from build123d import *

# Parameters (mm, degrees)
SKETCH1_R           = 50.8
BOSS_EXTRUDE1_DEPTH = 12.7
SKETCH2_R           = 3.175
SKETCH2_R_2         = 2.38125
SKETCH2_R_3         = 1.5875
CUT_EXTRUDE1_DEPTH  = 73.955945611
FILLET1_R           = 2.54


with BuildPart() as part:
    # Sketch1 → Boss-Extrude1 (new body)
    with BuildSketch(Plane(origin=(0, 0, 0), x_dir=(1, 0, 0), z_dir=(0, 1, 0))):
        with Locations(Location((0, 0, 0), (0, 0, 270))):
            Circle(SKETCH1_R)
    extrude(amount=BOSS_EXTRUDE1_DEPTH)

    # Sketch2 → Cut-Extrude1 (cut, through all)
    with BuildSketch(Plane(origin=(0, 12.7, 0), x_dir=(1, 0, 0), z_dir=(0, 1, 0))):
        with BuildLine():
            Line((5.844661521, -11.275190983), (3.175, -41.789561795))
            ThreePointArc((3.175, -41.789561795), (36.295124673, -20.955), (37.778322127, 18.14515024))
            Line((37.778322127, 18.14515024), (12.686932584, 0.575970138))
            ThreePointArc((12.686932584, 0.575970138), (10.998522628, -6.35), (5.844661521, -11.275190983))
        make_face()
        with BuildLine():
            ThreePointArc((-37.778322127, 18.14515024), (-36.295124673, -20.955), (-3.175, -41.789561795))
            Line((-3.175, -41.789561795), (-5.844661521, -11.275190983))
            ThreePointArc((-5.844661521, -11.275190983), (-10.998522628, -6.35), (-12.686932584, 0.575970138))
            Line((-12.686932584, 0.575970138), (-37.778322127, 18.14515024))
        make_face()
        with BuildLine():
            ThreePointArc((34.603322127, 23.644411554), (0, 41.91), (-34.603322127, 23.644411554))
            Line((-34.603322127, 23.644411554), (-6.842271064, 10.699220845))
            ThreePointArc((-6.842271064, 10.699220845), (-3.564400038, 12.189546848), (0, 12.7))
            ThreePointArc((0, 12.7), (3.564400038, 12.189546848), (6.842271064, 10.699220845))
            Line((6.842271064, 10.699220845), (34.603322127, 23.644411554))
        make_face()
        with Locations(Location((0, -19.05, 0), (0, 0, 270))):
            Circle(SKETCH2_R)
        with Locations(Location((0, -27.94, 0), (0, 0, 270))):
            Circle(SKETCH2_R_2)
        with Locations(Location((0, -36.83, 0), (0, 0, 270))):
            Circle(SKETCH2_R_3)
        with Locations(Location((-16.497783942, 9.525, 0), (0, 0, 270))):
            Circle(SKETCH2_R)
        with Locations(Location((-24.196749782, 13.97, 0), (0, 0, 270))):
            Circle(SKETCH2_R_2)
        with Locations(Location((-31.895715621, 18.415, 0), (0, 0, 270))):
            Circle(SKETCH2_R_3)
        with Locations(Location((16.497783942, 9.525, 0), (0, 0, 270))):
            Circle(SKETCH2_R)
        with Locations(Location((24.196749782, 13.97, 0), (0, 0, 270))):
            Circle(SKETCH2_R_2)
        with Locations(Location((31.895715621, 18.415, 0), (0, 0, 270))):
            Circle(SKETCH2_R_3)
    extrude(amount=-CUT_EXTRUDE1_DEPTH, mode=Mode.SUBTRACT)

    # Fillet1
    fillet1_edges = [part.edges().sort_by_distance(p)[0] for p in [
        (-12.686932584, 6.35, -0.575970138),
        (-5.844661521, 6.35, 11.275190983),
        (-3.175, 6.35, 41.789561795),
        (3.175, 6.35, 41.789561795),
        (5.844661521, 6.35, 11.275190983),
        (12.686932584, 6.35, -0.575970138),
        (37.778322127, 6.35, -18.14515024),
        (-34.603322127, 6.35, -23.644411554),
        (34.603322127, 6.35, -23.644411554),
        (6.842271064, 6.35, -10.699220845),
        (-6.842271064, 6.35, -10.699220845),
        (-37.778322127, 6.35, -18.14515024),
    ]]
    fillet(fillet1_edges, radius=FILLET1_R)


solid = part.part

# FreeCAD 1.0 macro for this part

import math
import FreeCAD as App
import Part
import Sketcher

V = App.Vector
Q = App.Units.Quantity


def edges_at(feature, points):
    """Names of the edges that pass closest to the given points."""
    edges = feature.Shape.Edges
    near = lambda p: min(range(len(edges)), key=lambda i: edges[i].distToShape(Part.Vertex(*p))[0])
    return sorted({f"Edge{near(p) + 1}" for p in points})

doc = App.newDocument("Part")
body = doc.addObject("PartDesign::Body", "Body")

sketch1 = body.newObject("Sketcher::SketchObject", "Sketch")
sketch1.AttachmentSupport = (doc.getObject("XZ_Plane"), [""])
sketch1.MapMode = "FlatFace"
sketch1.addGeometry(Part.Circle(V(0, 0, 0), V(0, 0, 1), 50.8), False)
sketch1.addConstraint(Sketcher.Constraint("Coincident", 0, 3, -1, 1))
sketch1.addConstraint(Sketcher.Constraint("Diameter", 0, Q("4 in")))
pad1 = body.newObject("PartDesign::Pad", "Pad")
pad1.Profile = sketch1
pad1.Length = Q("0.5 in")
pad1.Reversed = True

sketch2 = body.newObject("Sketcher::SketchObject", "Sketch001")
sketch2.AttachmentSupport = (doc.getObject("XZ_Plane"), [""])
sketch2.MapMode = "FlatFace"
sketch2.AttachmentOffset = App.Placement(V(0, 0, -0.5 * 25.4), App.Rotation())
sketch2.addGeometry(Part.LineSegment(V(5.844662, 11.275191, 0), V(3.175, 41.789562, 0)), False)
sketch2.addGeometry(Part.ArcOfCircle(Part.Circle(V(0, 0, 0), V(0, 0, 1), 41.91), math.radians(-25.655248), math.radians(85.655248)), False)
sketch2.addGeometry(Part.LineSegment(V(37.778322, -18.14515, 0), V(12.686933, -0.57597, 0)), False)
sketch2.addGeometry(Part.ArcOfCircle(Part.Circle(V(0, 0, 0), V(0, 0, 1), 12.7), math.radians(-2.599369), math.radians(62.599369)), False)
sketch2.addGeometry(Part.ArcOfCircle(Part.Circle(V(0, 0, 0), V(0, 0, 1), 41.91), math.radians(94.344752), math.radians(205.655248)), False)
sketch2.addGeometry(Part.LineSegment(V(-3.175, 41.789562, 0), V(-5.844662, 11.275191, 0)), False)
sketch2.addGeometry(Part.ArcOfCircle(Part.Circle(V(0, 0, 0), V(0, 0, 1), 12.7), math.radians(117.400631), math.radians(182.599369)), False)
sketch2.addGeometry(Part.LineSegment(V(-12.686933, -0.57597, 0), V(-37.778322, -18.14515, 0)), False)
sketch2.addGeometry(Part.ArcOfCircle(Part.Circle(V(0, 0, 0), V(0, 0, 1), 41.91), math.radians(-145.655248), math.radians(-34.344752)), False)
sketch2.addGeometry(Part.LineSegment(V(-34.603322, -23.644412, 0), V(-6.842271, -10.699221, 0)), False)
sketch2.addGeometry(Part.ArcOfCircle(Part.Circle(V(0, 0, 0), V(0, 0, 1), 12.7), math.radians(-122.599369), math.radians(-90)), False)
sketch2.addGeometry(Part.ArcOfCircle(Part.Circle(V(0, 0, 0), V(0, 0, 1), 12.7), math.radians(-90), math.radians(-57.400631)), False)
sketch2.addGeometry(Part.LineSegment(V(6.842271, -10.699221, 0), V(34.603322, -23.644412, 0)), False)
sketch2.addGeometry(Part.Circle(V(0, 19.05, 0), V(0, 0, 1), 3.175), False)
sketch2.addGeometry(Part.Circle(V(0, 27.94, 0), V(0, 0, 1), 2.38125), False)
sketch2.addGeometry(Part.Circle(V(0, 36.83, 0), V(0, 0, 1), 1.5875), False)
sketch2.addGeometry(Part.Circle(V(-16.497784, -9.525, 0), V(0, 0, 1), 3.175), False)
sketch2.addGeometry(Part.Circle(V(-24.19675, -13.97, 0), V(0, 0, 1), 2.38125), False)
sketch2.addGeometry(Part.Circle(V(-31.895716, -18.415, 0), V(0, 0, 1), 1.5875), False)
sketch2.addGeometry(Part.Circle(V(16.497784, -9.525, 0), V(0, 0, 1), 3.175), False)
sketch2.addGeometry(Part.Circle(V(24.19675, -13.97, 0), V(0, 0, 1), 2.38125), False)
sketch2.addGeometry(Part.Circle(V(31.895716, -18.415, 0), V(0, 0, 1), 1.5875), False)
sketch2.addConstraint(Sketcher.Constraint("Coincident", 0, 2, 1, 2))
sketch2.addConstraint(Sketcher.Constraint("Coincident", 1, 1, 2, 1))
sketch2.addConstraint(Sketcher.Constraint("Coincident", 2, 2, 3, 1))
sketch2.addConstraint(Sketcher.Constraint("Coincident", 3, 2, 0, 1))
sketch2.addConstraint(Sketcher.Constraint("Coincident", 4, 1, 5, 1))
sketch2.addConstraint(Sketcher.Constraint("Coincident", 5, 2, 6, 1))
sketch2.addConstraint(Sketcher.Constraint("Coincident", 6, 2, 7, 1))
sketch2.addConstraint(Sketcher.Constraint("Coincident", 7, 2, 4, 2))
sketch2.addConstraint(Sketcher.Constraint("Coincident", 8, 1, 9, 1))
sketch2.addConstraint(Sketcher.Constraint("Coincident", 9, 2, 10, 1))
sketch2.addConstraint(Sketcher.Constraint("Tangent", 10, 2, 11, 1))
sketch2.addConstraint(Sketcher.Constraint("Coincident", 11, 2, 12, 1))
sketch2.addConstraint(Sketcher.Constraint("Coincident", 12, 2, 8, 2))
sketch2.addConstraint(Sketcher.Constraint("Coincident", 1, 3, -1, 1))
sketch2.addConstraint(Sketcher.Constraint("Coincident", 3, 3, -1, 1))
sketch2.addConstraint(Sketcher.Constraint("Coincident", 4, 3, -1, 1))
sketch2.addConstraint(Sketcher.Constraint("Coincident", 6, 3, -1, 1))
sketch2.addConstraint(Sketcher.Constraint("Coincident", 8, 3, -1, 1))
sketch2.addConstraint(Sketcher.Constraint("Coincident", 10, 3, -1, 1))
sketch2.addConstraint(Sketcher.Constraint("Equal", 1, 4))
sketch2.addConstraint(Sketcher.Constraint("Equal", 3, 6))
sketch2.addConstraint(Sketcher.Constraint("Equal", 4, 8))
sketch2.addConstraint(Sketcher.Constraint("Equal", 6, 10))
sketch2.addConstraint(Sketcher.Constraint("Equal", 10, 11))
sketch2.addConstraint(Sketcher.Constraint("Equal", 13, 16))
sketch2.addConstraint(Sketcher.Constraint("Equal", 14, 17))
sketch2.addConstraint(Sketcher.Constraint("Equal", 15, 18))
sketch2.addConstraint(Sketcher.Constraint("Equal", 16, 19))
sketch2.addConstraint(Sketcher.Constraint("Equal", 17, 20))
sketch2.addConstraint(Sketcher.Constraint("Equal", 18, 21))
sketch2.addConstraint(Sketcher.Constraint("Symmetric", 16, 3, 19, 3, -2))
sketch2.addConstraint(Sketcher.Constraint("Symmetric", 17, 3, 20, 3, -2))
sketch2.addConstraint(Sketcher.Constraint("Symmetric", 18, 3, 21, 3, -2))
sketch2.addConstraint(Sketcher.Constraint("PointOnObject", 13, 3, -2))
sketch2.addConstraint(Sketcher.Constraint("PointOnObject", 14, 3, -2))
sketch2.addConstraint(Sketcher.Constraint("PointOnObject", 15, 3, -2))
sketch2.addConstraint(Sketcher.Constraint("PointOnObject", 10, 2, -2))
sketch2.addConstraint(Sketcher.Constraint("Horizontal", 0, 2, 4, 1))
sketch2.addConstraint(Sketcher.Constraint("Horizontal", 3, 2, 5, 2))
sketch2.addConstraint(Sketcher.Constraint("Horizontal", 2, 2, 6, 2))
sketch2.addConstraint(Sketcher.Constraint("Horizontal", 1, 1, 7, 2))
sketch2.addConstraint(Sketcher.Constraint("Horizontal", 9, 2, 11, 2))
sketch2.addConstraint(Sketcher.Constraint("Horizontal", 8, 1, 12, 2))
sketch2.addConstraint(Sketcher.Constraint("Equal", 0, 2))
sketch2.addConstraint(Sketcher.Constraint("Equal", 7, 9))
sketch2.addConstraint(Sketcher.Constraint("Radius", 3, Q("0.5 in")))
sketch2.addConstraint(Sketcher.Constraint("Diameter", 13, Q("0.25 in")))
sketch2.addConstraint(Sketcher.Constraint("Radius", 1, Q("1.65 in")))
sketch2.addConstraint(Sketcher.Constraint("Diameter", 14, Q("0.1875 in")))
sketch2.addConstraint(Sketcher.Constraint("Diameter", 15, Q("0.125 in")))
sketch2.addConstraint(Sketcher.Constraint("Angle", 0, Q("95 deg")))
sketch2.addConstraint(Sketcher.Constraint("Angle", 2, Q("145 deg")))
sketch2.addConstraint(Sketcher.Constraint("Angle", 9, Q("25 deg")))
sketch2.addConstraint(Sketcher.Constraint("DistanceY", -1, 1, 14, 3, Q("1.1 in")))
sketch2.addConstraint(Sketcher.Constraint("DistanceY", 13, 3, 15, 3, Q("0.7 in")))
sketch2.addConstraint(Sketcher.Constraint("DistanceY", -1, 1, 13, 3, Q("0.75 in")))
sketch2.addConstraint(Sketcher.Constraint("DistanceY", 17, 3, -1, 1, Q("0.55 in")))
sketch2.addConstraint(Sketcher.Constraint("DistanceY", 18, 3, 16, 3, Q("0.35 in")))
sketch2.addConstraint(Sketcher.Constraint("DistanceX", 4, 1, 0, 2, Q("0.25 in")))
sketch2.addConstraint(Sketcher.Constraint("DistanceY", 16, 3, -1, 1, Q("0.375 in")))
sketch2.addConstraint(Sketcher.Constraint("DistanceX", 17, 3, -1, 1, Q("24.19675 mm")))
sketch2.addConstraint(Sketcher.Constraint("DistanceX", 18, 3, 16, 3, Q("15.397932 mm")))
sketch2.addConstraint(Sketcher.Constraint("DistanceX", 19, 3, 1, 1, Q("21.280538 mm")))
pocket1 = body.newObject("PartDesign::Pocket", "Pocket")
pocket1.Profile = sketch2
pocket1.Type = "ThroughAll"
pocket1.Reversed = True
doc.recompute()

fillet = body.newObject("PartDesign::Fillet", "Fillet")
fillet.Base = (pocket1, edges_at(pocket1, [
    (-12.687, 6.35, -0.576),
    (-5.845, 6.35, 11.275),
    (-3.175, 6.35, 41.79),
    (3.175, 6.35, 41.79),
    (5.845, 6.35, 11.275),
    (12.687, 6.35, -0.576),
    (37.778, 6.35, -18.145),
    (-34.603, 6.35, -23.644),
    (34.603, 6.35, -23.644),
    (6.842, 6.35, -10.699),
    (-6.842, 6.35, -10.699),
    (-37.778, 6.35, -18.145),
]))
fillet.Radius = Q("0.1 in")

doc.recompute()
